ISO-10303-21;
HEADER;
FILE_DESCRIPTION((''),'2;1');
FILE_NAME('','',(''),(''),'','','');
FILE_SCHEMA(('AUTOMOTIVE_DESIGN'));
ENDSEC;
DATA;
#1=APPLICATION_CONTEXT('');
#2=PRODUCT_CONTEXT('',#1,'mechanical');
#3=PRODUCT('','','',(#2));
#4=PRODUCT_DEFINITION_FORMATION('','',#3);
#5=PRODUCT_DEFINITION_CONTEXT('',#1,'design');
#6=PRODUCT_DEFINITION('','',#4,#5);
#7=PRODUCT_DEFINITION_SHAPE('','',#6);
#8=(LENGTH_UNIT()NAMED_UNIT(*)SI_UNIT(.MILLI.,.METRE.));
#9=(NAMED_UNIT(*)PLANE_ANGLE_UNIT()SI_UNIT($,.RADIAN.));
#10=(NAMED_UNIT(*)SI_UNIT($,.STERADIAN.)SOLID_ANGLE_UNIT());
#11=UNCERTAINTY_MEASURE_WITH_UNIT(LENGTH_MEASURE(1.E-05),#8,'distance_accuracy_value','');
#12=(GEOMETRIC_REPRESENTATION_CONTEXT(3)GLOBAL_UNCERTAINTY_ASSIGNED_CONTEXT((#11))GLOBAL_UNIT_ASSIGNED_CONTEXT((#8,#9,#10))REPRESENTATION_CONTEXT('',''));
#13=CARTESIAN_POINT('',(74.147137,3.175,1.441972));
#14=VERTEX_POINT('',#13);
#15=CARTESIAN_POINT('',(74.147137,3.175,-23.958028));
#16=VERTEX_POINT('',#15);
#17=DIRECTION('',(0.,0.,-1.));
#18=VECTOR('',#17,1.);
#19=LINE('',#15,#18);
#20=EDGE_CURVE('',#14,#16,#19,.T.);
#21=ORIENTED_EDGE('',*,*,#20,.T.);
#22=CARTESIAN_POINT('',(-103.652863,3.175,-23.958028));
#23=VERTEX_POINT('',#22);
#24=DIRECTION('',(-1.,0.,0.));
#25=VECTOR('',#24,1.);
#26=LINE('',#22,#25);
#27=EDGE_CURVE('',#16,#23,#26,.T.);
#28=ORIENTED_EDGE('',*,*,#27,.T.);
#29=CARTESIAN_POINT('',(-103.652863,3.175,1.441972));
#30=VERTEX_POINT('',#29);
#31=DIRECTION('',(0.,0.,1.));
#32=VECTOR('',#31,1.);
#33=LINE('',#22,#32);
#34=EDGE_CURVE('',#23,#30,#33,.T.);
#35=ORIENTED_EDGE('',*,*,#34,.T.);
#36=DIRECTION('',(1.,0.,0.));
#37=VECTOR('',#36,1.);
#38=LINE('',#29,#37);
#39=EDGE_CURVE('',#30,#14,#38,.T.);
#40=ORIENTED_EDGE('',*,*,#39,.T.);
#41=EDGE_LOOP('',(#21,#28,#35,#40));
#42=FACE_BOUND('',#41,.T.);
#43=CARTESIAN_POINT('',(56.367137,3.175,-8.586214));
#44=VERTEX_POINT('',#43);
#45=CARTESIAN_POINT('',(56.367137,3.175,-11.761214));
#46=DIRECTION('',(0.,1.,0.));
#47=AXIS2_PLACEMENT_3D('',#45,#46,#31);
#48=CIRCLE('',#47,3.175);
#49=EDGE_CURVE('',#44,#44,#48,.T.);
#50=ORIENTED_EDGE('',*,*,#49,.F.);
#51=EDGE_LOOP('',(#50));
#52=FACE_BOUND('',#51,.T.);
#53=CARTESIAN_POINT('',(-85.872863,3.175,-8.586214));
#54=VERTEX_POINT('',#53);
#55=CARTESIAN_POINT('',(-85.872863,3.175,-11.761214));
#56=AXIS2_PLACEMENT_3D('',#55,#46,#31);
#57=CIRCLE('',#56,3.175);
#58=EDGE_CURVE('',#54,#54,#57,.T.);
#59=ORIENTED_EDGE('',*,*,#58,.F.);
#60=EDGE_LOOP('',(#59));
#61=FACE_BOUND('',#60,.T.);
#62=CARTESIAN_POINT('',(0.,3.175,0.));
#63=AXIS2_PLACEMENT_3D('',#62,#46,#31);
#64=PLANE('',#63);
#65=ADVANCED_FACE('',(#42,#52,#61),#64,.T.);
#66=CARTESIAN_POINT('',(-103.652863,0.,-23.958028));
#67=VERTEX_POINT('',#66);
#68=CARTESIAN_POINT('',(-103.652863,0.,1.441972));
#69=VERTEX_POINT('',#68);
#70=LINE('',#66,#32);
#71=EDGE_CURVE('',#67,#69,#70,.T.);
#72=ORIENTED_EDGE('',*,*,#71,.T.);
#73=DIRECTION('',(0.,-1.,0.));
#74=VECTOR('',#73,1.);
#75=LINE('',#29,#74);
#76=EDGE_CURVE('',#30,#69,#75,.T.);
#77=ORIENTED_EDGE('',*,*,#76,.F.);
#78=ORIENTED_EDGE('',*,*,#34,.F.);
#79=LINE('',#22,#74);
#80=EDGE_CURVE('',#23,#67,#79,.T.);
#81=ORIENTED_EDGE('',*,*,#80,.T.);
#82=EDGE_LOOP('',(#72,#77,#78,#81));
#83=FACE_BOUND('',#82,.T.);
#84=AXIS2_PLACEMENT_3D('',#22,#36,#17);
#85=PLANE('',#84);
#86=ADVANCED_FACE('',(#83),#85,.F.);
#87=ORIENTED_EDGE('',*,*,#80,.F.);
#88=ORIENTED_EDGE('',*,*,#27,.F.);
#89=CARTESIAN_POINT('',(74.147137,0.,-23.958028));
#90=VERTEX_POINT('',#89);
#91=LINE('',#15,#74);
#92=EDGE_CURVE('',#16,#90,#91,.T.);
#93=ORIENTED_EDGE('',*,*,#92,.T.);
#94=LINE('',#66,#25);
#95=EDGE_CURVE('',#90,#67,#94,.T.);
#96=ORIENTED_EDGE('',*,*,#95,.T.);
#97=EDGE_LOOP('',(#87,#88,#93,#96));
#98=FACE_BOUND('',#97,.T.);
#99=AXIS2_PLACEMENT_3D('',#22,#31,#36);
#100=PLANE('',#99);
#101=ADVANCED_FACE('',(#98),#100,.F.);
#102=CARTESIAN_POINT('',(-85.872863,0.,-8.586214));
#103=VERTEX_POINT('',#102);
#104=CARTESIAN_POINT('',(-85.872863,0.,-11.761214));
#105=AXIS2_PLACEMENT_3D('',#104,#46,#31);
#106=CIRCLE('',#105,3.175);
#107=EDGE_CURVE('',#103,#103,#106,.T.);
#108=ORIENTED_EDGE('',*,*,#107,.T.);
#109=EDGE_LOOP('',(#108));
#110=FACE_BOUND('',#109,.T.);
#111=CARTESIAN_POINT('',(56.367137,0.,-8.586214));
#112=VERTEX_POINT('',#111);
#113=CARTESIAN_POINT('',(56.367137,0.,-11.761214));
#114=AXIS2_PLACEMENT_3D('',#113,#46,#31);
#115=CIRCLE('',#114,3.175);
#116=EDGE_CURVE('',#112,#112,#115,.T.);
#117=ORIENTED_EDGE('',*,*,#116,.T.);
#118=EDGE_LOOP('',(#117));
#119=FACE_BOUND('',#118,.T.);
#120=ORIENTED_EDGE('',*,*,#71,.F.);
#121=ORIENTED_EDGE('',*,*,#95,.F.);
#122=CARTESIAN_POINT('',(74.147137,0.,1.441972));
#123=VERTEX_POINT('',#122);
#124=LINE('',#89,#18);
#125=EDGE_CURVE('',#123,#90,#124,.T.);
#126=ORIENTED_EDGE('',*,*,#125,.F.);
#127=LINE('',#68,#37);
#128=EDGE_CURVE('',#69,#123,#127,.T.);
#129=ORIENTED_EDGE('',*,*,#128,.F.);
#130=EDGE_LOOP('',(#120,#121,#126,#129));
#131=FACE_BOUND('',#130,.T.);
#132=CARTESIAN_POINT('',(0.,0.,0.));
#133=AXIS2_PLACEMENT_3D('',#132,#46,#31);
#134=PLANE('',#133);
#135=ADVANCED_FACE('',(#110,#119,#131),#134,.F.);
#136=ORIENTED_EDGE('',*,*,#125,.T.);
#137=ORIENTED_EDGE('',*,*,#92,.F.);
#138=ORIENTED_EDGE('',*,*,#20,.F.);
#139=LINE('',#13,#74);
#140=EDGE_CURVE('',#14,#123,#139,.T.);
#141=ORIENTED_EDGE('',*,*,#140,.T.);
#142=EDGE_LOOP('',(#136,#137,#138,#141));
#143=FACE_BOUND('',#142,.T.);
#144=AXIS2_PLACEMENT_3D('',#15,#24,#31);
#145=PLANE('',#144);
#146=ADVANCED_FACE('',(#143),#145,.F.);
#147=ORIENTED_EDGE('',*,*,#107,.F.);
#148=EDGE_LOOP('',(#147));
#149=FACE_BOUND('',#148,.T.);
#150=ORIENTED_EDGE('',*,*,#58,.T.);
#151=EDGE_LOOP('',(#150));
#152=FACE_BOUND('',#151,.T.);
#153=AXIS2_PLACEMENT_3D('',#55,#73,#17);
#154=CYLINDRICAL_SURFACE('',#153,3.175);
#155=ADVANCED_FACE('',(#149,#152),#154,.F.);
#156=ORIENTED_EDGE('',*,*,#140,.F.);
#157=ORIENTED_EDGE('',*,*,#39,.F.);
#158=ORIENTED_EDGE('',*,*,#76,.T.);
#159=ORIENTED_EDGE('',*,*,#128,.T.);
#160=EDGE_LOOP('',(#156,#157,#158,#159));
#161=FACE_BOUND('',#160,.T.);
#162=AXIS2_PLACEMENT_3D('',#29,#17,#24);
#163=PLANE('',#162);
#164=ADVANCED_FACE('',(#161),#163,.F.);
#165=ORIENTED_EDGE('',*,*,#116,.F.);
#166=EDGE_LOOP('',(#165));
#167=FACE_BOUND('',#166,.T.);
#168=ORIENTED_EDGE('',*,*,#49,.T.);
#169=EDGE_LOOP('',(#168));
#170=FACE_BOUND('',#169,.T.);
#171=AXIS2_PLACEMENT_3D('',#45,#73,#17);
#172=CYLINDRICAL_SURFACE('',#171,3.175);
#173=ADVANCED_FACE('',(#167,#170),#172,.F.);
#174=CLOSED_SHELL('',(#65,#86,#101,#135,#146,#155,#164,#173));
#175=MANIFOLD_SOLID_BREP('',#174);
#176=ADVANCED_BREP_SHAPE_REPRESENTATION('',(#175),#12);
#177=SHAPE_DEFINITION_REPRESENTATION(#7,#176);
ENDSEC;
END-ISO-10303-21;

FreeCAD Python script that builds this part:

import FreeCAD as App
import Part
import Sketcher
from FreeCAD import Vector
Q = App.Units.Quantity

doc = App.newDocument("Part")
body = doc.addObject("PartDesign::Body", "Body")

# Sketch on XZ plane
sketch1 = doc.addObject("Sketcher::SketchObject", "Sketch")
body.addObject(sketch1)
sketch1.AttachmentSupport = (doc.XZ_Plane, [""])
sketch1.MapMode = "FlatFace"
sketch1.addGeometry(Part.LineSegment(Vector(-103.652863, -23.958028, 0), Vector(-103.652863, 1.441972, 0)), False)
sketch1.addGeometry(Part.LineSegment(Vector(-103.652863, 1.441972, 0), Vector(74.147137, 1.441972, 0)), False)
sketch1.addGeometry(Part.LineSegment(Vector(74.147137, 1.441972, 0), Vector(74.147137, -23.958028, 0)), False)
sketch1.addGeometry(Part.LineSegment(Vector(74.147137, -23.958028, 0), Vector(-103.652863, -23.958028, 0)), False)
sketch1.addGeometry(Part.Circle(Vector(-85.872863, -11.761214, 0), Vector(0, 0, 1), 3.175), False)
sketch1.addGeometry(Part.Circle(Vector(56.367137, -11.761214, 0), Vector(0, 0, 1), 3.175), False)
sketch1.addConstraint(Sketcher.Constraint("Coincident", 0, 2, 1, 1))
sketch1.addConstraint(Sketcher.Constraint("Coincident", 1, 2, 2, 1))
sketch1.addConstraint(Sketcher.Constraint("Coincident", 2, 2, 3, 1))
sketch1.addConstraint(Sketcher.Constraint("Coincident", 3, 2, 0, 1))
sketch1.addConstraint(Sketcher.Constraint("Vertical", 0))
sketch1.addConstraint(Sketcher.Constraint("Horizontal", 1))
sketch1.addConstraint(Sketcher.Constraint("Vertical", 2))
sketch1.addConstraint(Sketcher.Constraint("Horizontal", 3))
sketch1.addConstraint(Sketcher.Constraint("Equal", 4, 5))
sketch1.addConstraint(Sketcher.Constraint("Horizontal", 4, 3, 5, 3))
sketch1.addConstraint(Sketcher.Constraint("Diameter", 4, Q("0.25 in")))
sketch1.addConstraint(Sketcher.Constraint("DistanceX", 1, 1, 1, 2, Q("7 in")))
sketch1.addConstraint(Sketcher.Constraint("DistanceY", 0, 1, 0, 2, Q("1 in")))
sketch1.addConstraint(Sketcher.Constraint("DistanceX", 4, 3, 5, 3, Q("5.6 in")))
sketch1.addConstraint(Sketcher.Constraint("DistanceX", 0, 2, 4, 3, Q("0.7 in")))
sketch1.addConstraint(Sketcher.Constraint("DistanceY", -1, 1, 0, 2, 1.441972))
sketch1.addConstraint(Sketcher.Constraint("DistanceX", 4, 3, -1, 1, 85.872863))
sketch1.addConstraint(Sketcher.Constraint("DistanceY", 4, 3, -1, 1, 11.761214))
pad1 = doc.addObject("PartDesign::Pad", "Pad")
body.addObject(pad1)
pad1.Profile = sketch1
pad1.Length = Q("0.125 in")
pad1.Reversed = True

doc.recompute()
